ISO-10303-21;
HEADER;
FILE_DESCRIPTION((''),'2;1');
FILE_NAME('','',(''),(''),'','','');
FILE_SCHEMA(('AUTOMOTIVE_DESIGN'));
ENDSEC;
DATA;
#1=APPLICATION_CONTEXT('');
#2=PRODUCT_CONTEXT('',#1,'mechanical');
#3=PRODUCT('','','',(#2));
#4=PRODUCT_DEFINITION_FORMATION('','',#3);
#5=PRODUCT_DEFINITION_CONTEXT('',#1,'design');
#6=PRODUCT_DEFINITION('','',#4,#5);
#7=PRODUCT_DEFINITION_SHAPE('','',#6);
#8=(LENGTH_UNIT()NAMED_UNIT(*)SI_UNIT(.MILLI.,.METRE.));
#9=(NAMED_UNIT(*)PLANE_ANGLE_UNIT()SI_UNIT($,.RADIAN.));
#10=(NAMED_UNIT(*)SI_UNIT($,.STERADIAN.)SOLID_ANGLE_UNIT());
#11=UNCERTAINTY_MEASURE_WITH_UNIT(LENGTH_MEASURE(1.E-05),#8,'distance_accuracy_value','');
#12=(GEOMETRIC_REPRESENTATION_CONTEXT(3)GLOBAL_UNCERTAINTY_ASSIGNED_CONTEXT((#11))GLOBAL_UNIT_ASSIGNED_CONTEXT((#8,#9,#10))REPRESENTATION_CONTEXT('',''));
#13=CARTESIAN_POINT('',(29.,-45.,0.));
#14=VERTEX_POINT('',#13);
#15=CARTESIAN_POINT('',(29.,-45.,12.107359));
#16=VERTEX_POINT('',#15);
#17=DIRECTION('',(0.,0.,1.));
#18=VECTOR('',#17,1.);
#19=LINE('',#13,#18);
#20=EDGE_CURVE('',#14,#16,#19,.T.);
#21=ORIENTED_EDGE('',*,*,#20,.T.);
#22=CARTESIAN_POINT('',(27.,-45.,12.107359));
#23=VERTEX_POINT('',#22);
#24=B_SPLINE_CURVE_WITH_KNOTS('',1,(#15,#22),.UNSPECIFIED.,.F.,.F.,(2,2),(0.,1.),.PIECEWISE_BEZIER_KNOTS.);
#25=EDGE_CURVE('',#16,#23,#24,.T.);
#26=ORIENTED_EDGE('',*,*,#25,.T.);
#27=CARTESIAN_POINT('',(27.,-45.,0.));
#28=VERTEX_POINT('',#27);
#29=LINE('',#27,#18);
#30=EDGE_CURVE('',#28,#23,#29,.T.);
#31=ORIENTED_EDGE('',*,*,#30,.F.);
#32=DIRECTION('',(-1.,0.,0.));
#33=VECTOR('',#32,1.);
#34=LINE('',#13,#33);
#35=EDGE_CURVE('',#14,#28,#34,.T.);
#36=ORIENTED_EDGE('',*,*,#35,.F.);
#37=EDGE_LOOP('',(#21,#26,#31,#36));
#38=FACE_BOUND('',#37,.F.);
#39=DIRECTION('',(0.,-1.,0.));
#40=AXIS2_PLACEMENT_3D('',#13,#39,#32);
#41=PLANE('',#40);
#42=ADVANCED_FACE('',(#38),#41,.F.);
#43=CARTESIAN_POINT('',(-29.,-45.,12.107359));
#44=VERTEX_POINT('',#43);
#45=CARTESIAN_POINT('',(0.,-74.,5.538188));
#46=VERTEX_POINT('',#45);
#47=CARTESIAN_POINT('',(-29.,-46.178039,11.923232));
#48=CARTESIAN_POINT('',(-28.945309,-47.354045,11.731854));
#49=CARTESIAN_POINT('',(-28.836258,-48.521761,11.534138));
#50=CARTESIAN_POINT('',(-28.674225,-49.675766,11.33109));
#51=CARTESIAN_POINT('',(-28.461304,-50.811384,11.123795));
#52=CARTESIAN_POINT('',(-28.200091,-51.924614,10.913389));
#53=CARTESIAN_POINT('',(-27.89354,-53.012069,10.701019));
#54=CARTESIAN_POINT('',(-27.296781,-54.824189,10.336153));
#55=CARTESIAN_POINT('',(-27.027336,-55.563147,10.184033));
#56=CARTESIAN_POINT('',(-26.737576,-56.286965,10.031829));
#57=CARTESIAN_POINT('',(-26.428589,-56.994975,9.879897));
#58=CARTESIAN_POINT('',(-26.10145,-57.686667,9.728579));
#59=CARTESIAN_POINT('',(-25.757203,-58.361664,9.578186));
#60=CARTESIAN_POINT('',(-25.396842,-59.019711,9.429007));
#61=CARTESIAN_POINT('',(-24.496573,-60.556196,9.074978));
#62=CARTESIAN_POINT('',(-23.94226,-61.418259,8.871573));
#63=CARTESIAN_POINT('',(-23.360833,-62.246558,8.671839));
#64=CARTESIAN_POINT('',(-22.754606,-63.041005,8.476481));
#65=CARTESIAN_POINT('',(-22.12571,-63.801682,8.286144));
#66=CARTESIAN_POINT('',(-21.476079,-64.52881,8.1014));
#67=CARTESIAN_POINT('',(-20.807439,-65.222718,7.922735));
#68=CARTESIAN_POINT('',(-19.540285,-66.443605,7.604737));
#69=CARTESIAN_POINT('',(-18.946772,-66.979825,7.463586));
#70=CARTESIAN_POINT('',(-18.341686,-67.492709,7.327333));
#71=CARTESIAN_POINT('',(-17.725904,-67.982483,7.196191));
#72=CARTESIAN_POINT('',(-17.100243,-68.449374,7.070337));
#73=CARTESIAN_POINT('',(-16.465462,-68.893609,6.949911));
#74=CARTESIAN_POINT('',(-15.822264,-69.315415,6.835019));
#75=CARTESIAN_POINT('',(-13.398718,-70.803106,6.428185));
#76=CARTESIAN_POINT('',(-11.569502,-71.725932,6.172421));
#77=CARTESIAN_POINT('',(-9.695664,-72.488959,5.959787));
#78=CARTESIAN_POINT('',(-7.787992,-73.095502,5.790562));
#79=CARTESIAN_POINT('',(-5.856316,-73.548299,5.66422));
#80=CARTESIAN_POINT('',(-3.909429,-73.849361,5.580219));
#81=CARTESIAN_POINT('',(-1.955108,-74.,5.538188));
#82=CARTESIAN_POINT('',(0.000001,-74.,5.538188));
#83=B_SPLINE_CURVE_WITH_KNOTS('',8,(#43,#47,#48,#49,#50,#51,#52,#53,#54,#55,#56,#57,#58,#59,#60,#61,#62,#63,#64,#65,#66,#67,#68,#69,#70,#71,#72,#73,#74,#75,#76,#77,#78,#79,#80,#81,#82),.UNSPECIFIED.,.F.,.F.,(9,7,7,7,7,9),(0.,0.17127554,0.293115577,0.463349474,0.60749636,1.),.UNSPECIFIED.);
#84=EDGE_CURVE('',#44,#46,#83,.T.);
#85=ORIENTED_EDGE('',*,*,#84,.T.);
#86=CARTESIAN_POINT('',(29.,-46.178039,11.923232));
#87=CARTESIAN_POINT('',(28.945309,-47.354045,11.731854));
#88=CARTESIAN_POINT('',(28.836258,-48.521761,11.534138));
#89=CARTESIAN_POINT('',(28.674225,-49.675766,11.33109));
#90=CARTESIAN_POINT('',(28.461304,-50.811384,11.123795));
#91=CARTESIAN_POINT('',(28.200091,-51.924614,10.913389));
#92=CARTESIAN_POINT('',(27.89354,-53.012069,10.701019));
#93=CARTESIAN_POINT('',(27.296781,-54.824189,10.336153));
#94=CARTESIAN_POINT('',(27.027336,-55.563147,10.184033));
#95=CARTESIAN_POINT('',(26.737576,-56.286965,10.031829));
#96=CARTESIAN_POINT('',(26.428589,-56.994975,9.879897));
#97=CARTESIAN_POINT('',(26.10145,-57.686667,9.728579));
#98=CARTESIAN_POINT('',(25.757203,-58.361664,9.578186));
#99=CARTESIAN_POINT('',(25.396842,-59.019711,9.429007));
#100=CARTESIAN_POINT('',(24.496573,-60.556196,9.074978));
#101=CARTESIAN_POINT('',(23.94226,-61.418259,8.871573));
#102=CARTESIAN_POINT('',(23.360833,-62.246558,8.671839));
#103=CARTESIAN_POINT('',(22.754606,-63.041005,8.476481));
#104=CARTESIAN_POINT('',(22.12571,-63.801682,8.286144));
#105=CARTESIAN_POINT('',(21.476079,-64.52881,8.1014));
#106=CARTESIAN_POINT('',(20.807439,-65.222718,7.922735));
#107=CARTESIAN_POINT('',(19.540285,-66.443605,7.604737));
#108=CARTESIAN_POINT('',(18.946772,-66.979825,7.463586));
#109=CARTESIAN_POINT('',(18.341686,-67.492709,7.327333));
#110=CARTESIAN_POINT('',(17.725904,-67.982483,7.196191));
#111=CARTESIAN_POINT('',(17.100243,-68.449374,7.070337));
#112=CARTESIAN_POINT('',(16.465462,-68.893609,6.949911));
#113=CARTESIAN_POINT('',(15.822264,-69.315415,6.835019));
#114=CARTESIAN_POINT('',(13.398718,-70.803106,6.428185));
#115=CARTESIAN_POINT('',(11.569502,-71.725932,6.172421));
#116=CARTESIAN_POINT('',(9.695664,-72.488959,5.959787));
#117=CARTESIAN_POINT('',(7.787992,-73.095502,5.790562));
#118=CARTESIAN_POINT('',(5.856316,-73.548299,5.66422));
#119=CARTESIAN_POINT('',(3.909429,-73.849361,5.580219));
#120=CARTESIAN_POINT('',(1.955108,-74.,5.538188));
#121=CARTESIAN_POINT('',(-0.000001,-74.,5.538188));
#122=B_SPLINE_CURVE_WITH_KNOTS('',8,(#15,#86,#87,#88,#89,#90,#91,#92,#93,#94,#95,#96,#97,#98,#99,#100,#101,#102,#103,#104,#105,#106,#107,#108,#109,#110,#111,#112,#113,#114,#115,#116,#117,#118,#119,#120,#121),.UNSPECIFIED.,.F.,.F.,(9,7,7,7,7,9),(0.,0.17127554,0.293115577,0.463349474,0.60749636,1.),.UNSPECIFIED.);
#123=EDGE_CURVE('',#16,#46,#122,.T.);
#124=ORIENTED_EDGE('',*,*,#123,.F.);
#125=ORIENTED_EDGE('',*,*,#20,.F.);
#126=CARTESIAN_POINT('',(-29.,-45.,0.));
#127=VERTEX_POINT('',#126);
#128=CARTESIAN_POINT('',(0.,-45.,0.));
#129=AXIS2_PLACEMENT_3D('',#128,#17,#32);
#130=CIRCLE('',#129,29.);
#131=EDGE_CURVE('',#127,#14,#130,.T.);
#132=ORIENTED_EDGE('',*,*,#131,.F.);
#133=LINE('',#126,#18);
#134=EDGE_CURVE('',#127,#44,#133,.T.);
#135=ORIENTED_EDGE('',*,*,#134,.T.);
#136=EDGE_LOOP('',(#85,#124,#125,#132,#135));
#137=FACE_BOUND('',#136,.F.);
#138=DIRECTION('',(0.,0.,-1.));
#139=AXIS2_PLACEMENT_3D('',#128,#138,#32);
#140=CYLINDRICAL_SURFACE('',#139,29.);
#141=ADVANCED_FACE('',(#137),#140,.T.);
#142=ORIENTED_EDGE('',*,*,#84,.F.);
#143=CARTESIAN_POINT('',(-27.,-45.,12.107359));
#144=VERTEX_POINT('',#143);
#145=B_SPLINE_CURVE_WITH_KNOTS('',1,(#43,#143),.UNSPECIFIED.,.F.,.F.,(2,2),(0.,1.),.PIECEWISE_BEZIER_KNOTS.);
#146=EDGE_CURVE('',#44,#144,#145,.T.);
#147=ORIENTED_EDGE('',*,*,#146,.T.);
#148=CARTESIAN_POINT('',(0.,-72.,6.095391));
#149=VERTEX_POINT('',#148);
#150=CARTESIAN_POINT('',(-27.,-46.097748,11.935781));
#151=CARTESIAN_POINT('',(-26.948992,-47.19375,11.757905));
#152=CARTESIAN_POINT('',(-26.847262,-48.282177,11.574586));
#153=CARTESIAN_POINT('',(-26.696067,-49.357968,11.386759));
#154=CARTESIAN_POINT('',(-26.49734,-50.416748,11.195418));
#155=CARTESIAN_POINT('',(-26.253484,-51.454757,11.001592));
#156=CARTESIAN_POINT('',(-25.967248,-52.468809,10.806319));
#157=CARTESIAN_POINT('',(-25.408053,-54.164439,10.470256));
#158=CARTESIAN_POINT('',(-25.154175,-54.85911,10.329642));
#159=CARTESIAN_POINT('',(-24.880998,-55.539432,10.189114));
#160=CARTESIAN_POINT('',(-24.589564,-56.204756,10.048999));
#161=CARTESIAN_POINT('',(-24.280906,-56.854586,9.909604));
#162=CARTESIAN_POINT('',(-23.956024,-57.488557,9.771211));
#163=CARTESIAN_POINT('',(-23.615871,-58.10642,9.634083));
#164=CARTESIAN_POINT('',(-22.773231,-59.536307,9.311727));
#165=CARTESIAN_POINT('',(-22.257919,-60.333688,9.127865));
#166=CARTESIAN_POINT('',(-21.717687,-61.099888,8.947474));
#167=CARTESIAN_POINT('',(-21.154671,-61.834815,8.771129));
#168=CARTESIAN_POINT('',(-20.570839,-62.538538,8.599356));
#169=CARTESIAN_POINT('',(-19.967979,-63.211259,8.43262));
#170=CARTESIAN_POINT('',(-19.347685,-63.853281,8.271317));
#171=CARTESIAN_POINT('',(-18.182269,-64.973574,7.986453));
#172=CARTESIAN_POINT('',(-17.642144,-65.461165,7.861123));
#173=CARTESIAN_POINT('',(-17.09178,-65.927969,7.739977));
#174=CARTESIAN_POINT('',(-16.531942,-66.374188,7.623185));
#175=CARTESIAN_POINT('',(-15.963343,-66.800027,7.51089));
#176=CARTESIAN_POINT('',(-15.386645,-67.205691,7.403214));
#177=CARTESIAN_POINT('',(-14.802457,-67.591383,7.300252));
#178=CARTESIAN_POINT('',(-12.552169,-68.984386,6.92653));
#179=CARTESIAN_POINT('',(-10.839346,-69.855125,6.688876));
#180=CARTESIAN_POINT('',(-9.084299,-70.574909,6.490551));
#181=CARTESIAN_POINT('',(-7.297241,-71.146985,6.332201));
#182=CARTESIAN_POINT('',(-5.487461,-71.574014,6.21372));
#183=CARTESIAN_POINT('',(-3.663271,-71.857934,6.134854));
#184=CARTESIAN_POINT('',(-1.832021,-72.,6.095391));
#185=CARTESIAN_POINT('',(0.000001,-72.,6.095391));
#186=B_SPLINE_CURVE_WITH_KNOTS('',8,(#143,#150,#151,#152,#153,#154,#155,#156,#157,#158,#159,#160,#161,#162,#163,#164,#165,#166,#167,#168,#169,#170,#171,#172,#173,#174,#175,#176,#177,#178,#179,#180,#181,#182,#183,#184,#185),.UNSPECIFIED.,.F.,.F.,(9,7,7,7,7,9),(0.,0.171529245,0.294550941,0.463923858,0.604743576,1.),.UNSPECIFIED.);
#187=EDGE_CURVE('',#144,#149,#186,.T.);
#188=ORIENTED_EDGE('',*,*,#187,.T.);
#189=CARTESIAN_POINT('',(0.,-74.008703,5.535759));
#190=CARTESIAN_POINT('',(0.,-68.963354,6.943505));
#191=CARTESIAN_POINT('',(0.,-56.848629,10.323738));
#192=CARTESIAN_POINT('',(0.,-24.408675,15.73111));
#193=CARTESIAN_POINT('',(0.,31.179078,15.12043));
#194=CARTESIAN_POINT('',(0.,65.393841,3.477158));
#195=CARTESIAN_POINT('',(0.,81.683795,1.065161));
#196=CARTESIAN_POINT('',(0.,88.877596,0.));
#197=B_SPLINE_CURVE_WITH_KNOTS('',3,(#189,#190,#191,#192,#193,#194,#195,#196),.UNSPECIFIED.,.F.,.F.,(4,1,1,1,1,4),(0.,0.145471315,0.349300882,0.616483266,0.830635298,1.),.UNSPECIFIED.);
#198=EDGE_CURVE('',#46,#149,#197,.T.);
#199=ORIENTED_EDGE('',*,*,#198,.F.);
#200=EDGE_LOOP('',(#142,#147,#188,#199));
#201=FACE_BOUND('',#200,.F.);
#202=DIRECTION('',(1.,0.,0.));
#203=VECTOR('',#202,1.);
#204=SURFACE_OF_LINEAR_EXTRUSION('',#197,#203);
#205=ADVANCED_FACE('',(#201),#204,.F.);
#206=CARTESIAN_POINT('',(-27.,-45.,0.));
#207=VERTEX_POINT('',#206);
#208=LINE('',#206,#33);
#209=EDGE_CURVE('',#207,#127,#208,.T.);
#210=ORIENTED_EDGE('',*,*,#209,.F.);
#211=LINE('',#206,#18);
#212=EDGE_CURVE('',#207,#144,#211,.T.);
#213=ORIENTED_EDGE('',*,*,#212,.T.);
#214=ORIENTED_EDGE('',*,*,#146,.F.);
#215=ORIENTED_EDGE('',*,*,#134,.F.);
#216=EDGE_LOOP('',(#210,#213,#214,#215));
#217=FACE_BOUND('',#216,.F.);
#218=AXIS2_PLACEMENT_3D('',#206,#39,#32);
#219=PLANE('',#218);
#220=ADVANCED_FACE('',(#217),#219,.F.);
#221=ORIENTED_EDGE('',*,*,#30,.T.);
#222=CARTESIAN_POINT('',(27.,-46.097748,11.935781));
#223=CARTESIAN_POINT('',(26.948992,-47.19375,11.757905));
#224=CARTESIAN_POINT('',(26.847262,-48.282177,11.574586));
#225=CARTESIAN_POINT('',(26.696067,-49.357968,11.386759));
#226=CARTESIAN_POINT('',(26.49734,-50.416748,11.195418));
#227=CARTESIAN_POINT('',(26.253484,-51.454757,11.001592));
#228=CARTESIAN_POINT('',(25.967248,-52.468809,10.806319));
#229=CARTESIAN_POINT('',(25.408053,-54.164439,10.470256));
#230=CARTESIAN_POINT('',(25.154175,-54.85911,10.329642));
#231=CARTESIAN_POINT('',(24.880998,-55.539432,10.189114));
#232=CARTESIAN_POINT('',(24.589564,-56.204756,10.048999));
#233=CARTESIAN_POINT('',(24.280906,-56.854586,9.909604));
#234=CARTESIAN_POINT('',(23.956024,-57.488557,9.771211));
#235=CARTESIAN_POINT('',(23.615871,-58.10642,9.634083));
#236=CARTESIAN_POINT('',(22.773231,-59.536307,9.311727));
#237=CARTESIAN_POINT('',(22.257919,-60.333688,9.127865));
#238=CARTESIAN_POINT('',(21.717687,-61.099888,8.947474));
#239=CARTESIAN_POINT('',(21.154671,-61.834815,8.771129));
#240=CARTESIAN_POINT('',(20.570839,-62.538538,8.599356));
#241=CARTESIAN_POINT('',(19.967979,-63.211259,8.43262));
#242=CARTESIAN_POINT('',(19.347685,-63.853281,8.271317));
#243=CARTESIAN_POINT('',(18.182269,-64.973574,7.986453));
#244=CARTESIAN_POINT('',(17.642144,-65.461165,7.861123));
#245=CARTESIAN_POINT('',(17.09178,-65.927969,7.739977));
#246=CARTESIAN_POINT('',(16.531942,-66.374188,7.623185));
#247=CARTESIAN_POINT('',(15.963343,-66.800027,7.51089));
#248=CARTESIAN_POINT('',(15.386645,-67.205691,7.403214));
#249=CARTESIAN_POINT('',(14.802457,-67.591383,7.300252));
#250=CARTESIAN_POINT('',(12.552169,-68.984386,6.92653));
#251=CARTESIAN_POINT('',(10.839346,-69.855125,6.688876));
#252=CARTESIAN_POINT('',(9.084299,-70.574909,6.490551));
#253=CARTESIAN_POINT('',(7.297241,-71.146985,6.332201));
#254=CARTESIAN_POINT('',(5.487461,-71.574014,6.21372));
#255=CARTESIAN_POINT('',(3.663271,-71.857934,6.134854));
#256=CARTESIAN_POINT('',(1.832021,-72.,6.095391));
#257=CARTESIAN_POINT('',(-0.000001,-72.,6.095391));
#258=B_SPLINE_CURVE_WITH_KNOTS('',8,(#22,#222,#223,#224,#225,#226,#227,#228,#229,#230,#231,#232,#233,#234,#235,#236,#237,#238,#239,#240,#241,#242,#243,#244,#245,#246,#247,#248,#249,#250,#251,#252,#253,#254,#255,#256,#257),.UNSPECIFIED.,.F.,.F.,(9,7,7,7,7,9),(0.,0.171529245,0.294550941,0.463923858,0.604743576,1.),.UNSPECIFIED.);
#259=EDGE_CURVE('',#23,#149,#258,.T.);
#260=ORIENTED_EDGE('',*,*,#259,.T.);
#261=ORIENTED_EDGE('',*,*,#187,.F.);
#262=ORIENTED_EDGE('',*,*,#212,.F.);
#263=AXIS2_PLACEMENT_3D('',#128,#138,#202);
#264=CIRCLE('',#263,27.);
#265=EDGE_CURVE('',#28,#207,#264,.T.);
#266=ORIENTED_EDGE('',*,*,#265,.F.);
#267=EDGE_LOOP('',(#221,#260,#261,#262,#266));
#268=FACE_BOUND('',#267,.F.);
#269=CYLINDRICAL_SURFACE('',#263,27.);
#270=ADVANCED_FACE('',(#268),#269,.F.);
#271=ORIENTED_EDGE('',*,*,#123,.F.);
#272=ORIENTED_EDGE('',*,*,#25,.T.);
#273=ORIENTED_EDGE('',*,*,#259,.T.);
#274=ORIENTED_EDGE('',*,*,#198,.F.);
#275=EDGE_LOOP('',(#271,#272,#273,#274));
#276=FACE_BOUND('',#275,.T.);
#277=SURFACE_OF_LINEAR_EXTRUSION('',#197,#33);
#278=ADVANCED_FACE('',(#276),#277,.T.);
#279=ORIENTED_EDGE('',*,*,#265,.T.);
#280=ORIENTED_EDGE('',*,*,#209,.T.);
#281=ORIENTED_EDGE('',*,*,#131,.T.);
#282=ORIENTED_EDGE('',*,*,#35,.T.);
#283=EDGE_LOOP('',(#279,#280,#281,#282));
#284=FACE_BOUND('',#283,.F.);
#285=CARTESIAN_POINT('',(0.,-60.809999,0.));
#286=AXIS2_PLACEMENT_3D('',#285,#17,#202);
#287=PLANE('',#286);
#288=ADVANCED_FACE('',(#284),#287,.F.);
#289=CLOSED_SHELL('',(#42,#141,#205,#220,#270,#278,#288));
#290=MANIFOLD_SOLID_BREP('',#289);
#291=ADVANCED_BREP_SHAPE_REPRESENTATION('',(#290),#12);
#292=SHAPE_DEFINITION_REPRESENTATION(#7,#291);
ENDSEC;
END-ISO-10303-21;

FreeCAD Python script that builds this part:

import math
import FreeCAD as App
import Part
import Sketcher

V = App.Vector
Q = App.Units.Quantity

doc = App.newDocument("Part")
body = doc.addObject("PartDesign::Body", "Body")

# Sketch on XY plane
sketch1 = body.newObject("Sketcher::SketchObject", "Sketch")
sketch1.AttachmentSupport = (doc.getObject("XY_Plane"), [""])
sketch1.MapMode = "FlatFace"
sketch1.addGeometry([
    Part.LineSegment(V(-27, -45, 0), V(-29, -45, 0)),
    Part.ArcOfCircle(Part.Circle(V(0, -45, 0), V(0, 0, 1), 29), math.radians(180), math.radians(360)),
    Part.LineSegment(V(29, -45, 0), V(27, -45, 0)),
    Part.ArcOfCircle(Part.Circle(V(0, -45, 0), V(0, 0, 1), 27), math.radians(180), math.radians(360)),
], False)
sketch1.addConstraint([
    Sketcher.Constraint("Coincident", 0, 2, 1, 1),
    Sketcher.Constraint("Coincident", 1, 2, 2, 1),
    Sketcher.Constraint("Coincident", 2, 2, 3, 2),
    Sketcher.Constraint("Coincident", 3, 1, 0, 1),
    Sketcher.Constraint("Horizontal", 0),
    Sketcher.Constraint("Horizontal", 2),
    Sketcher.Constraint("Coincident", 3, 3, 1, 3),
    Sketcher.Constraint("Symmetric", 0, 2, 1, 2, -2),
    Sketcher.Constraint("Horizontal", 3, 3, 0, 2),
    Sketcher.Constraint("Radius", 1, Q("29 mm")),
    Sketcher.Constraint("Radius", 3, Q("27 mm")),
    Sketcher.Constraint("DistanceY", 1, 3, -1, 1, Q("45 mm")),
])
pad1 = body.newObject("PartDesign::Pad", "Pad")
pad1.Profile = sketch1
pad1.Length = 20

# Sketch on YZ plane
sketch2 = body.newObject("Sketcher::SketchObject", "Sketch001")
sketch2.AttachmentSupport = (doc.getObject("YZ_Plane"), [""])
sketch2.MapMode = "FlatFace"
sketch2.addGeometry([
    Part.LineSegment(V(-93.394756, 5.535759, 0), V(-74.008703, 5.535759, 0)),  # 0
    Part.BSplineCurve([V(-74.008703, 5.535759, 0), V(-68.963354, 6.943505, 0), V(-56.848629, 10.323738, 0), V(-24.408675, 15.73111, 0), V(31.179078, 15.12043, 0), V(65.393841, 3.477158, 0), V(81.683795, 1.065161, 0), V(88.877596, 0, 0)], [4, 1, 1, 1, 1, 4], [0, 0.145471315, 0.349300882, 0.616483266, 0.830635298, 1], False, 3, [1, 1, 1, 1, 1, 1, 1, 1], False),  # 1
    Part.LineSegment(V(88.877596, 0, 0), V(88.877596, 32.655153, 0)),  # 2
    Part.LineSegment(V(88.877596, 32.655153, 0), V(-93.394756, 32.655153, 0)),  # 3
    Part.LineSegment(V(-93.394756, 32.655153, 0), V(-93.394756, 5.535759, 0)),  # 4
], False)
sketch2.addConstraint([
    Sketcher.Constraint("Block", 1),
    Sketcher.Constraint("Coincident", 0, 2, 1, 1),
    Sketcher.Constraint("Coincident", 1, 2, 2, 1),
    Sketcher.Constraint("Coincident", 2, 2, 3, 1),
    Sketcher.Constraint("Coincident", 3, 2, 4, 1),
    Sketcher.Constraint("Coincident", 4, 2, 0, 1),
    Sketcher.Constraint("Horizontal", 0),
    Sketcher.Constraint("Vertical", 2),
    Sketcher.Constraint("Horizontal", 3),
    Sketcher.Constraint("Vertical", 4),
    Sketcher.Constraint("DistanceX", 0, 1, 0, 2, Q("19.386053 mm")),
    Sketcher.Constraint("DistanceY", 2, 1, 2, 2, Q("32.655153 mm")),
])
pocket1 = body.newObject("PartDesign::Pocket", "Pocket")
pocket1.Profile = sketch2
pocket1.Length = 100
pocket1.Midplane = True

doc.recompute()
